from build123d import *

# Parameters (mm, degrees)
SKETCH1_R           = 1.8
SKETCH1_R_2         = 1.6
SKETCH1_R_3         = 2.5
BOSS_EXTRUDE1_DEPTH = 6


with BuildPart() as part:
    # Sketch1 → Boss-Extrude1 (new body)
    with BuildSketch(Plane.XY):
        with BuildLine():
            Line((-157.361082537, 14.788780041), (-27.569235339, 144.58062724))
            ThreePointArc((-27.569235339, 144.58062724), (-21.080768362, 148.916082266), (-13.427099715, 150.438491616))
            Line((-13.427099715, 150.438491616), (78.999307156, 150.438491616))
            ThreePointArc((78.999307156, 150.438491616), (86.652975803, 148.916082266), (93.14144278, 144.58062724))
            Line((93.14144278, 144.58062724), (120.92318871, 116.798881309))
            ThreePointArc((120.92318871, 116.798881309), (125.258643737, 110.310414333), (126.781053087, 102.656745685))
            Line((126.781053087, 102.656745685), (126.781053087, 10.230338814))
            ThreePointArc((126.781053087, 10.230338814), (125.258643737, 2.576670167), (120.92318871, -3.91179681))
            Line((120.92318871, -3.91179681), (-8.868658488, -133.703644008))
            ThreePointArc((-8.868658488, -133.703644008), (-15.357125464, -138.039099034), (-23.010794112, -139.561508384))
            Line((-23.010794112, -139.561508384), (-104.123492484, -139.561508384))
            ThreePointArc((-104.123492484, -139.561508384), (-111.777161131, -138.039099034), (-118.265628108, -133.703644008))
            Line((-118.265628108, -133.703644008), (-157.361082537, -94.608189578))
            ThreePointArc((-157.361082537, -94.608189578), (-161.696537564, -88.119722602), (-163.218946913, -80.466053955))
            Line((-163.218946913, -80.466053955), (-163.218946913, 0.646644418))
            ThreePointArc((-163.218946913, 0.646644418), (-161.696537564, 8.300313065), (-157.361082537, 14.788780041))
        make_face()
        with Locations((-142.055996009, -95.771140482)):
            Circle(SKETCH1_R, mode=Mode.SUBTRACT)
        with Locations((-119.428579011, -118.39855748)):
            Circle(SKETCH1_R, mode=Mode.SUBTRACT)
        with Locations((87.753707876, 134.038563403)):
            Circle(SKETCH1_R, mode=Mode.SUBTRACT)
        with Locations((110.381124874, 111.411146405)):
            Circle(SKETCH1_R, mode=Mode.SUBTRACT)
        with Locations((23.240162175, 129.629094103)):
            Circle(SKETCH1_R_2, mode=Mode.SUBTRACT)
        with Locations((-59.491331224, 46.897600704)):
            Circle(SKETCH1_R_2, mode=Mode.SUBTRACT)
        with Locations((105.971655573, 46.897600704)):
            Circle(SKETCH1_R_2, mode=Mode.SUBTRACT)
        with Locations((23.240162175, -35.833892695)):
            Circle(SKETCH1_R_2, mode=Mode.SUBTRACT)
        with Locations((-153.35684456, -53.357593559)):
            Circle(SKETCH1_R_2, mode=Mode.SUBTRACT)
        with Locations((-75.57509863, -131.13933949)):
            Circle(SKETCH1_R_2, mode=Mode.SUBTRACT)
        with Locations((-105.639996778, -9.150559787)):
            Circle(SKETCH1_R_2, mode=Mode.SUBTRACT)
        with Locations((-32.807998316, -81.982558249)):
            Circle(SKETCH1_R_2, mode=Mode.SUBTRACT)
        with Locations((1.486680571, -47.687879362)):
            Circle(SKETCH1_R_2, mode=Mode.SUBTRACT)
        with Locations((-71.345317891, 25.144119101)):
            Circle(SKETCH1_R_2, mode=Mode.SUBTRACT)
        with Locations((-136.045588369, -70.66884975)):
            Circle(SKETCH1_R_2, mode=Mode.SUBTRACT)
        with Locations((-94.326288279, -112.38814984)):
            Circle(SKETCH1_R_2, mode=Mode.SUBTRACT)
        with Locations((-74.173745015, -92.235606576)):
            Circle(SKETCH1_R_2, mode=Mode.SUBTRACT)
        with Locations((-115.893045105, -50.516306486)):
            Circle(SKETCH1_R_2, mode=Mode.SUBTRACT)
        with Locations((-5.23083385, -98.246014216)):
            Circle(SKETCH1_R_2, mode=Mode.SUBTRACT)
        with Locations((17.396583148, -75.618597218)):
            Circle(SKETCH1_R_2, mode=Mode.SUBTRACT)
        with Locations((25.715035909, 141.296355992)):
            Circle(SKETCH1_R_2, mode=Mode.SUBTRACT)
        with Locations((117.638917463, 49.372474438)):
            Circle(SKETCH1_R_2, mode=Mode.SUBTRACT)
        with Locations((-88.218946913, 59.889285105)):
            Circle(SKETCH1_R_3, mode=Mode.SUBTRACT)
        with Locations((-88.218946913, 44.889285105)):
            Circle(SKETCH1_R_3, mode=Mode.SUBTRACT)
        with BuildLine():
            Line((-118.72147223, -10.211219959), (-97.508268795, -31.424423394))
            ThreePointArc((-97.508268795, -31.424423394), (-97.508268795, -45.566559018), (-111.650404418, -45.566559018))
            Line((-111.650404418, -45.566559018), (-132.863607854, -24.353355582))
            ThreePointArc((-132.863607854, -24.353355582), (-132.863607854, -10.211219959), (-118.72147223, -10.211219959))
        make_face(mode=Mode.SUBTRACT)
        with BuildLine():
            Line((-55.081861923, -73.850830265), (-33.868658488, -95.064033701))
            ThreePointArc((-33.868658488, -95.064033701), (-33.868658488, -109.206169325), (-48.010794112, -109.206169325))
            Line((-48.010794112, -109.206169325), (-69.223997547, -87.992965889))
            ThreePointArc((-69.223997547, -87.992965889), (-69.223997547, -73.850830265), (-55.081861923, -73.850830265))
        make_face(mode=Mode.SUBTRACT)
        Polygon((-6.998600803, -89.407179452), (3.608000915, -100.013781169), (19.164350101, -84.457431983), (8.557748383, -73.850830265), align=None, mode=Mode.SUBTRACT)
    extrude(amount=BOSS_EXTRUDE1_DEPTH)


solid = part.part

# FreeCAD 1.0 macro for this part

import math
import FreeCAD as App
import Part
import Sketcher
from FreeCAD import Vector
Q = App.Units.Quantity

doc = App.newDocument("Part")
params = doc.addObject("Spreadsheet::Sheet", "Params")
for row, (alias, value) in enumerate([
    ("sketch1_diameter", "5 mm"),
    ("sketch1_radius", "20 mm"),
    ("sketch1_radius2", "10 mm"),
    ("sketch1_diameter2", "3.2 mm"),
    ("sketch1_diameter3", "3.6 mm"),
    ("pad1_length", "6 mm"),
], start=1):
    params.set(f"A{row}", alias)
    params.set(f"B{row}", "=" + value)
    params.setAlias(f"B{row}", alias)

body = doc.addObject("PartDesign::Body", "Body")

sketch1 = doc.addObject("Sketcher::SketchObject", "Sketch")
body.addObject(sketch1)
sketch1.AttachmentSupport = (doc.XY_Plane, [""])
sketch1.MapMode = "FlatFace"
sketch1.addGeometry([
    Part.LineSegment(Vector(-27.569235, 144.580627, 0), Vector(-157.361083, 14.78878, 0)),
    Part.ArcOfCircle(Part.Circle(Vector(-143.218947, 0.646644, 0), Vector(0, 0, 1), 20), math.radians(135), math.radians(180)),
    Part.LineSegment(Vector(-163.218947, 0.646644, 0), Vector(-163.218947, -80.466054, 0)),
    Part.ArcOfCircle(Part.Circle(Vector(-143.218947, -80.466054, 0), Vector(0, 0, 1), 20), math.radians(180), math.radians(225)),
    Part.LineSegment(Vector(-157.361083, -94.60819, 0), Vector(-118.265628, -133.703644, 0)),
    Part.ArcOfCircle(Part.Circle(Vector(-104.123492, -119.561508, 0), Vector(0, 0, 1), 20), math.radians(-135), math.radians(-90)),
    Part.LineSegment(Vector(-104.123492, -139.561508, 0), Vector(-23.010794, -139.561508, 0)),
    Part.ArcOfCircle(Part.Circle(Vector(-23.010794, -119.561508, 0), Vector(0, 0, 1), 20), math.radians(-90), math.radians(-45)),
    Part.LineSegment(Vector(-8.868658, -133.703644, 0), Vector(120.923189, -3.911797, 0)),
    Part.ArcOfCircle(Part.Circle(Vector(106.781053, 10.230339, 0), Vector(0, 0, 1), 20), math.radians(-45), math.radians(0)),
    Part.LineSegment(Vector(126.781053, 10.230339, 0), Vector(126.781053, 102.656746, 0)),
    Part.ArcOfCircle(Part.Circle(Vector(106.781053, 102.656746, 0), Vector(0, 0, 1), 20), math.radians(0), math.radians(45)),
    Part.LineSegment(Vector(120.923189, 116.798881, 0), Vector(93.141443, 144.580627, 0)),
    Part.ArcOfCircle(Part.Circle(Vector(78.999307, 130.438492, 0), Vector(0, 0, 1), 20), math.radians(45), math.radians(90)),
    Part.LineSegment(Vector(78.999307, 150.438492, 0), Vector(-13.4271, 150.438492, 0)),
    Part.ArcOfCircle(Part.Circle(Vector(-13.4271, 130.438492, 0), Vector(0, 0, 1), 20), math.radians(90), math.radians(135)),
    Part.Circle(Vector(17.396583, -75.618597, 0), Vector(0, 0, 1), 1.6),
    Part.LineSegment(Vector(-6.998601, -89.407179, 0), Vector(8.557748, -73.85083, 0)),
    Part.LineSegment(Vector(8.557748, -73.85083, 0), Vector(19.16435, -84.457432, 0)),
    Part.LineSegment(Vector(19.16435, -84.457432, 0), Vector(3.608001, -100.013781, 0)),
    Part.LineSegment(Vector(3.608001, -100.013781, 0), Vector(-6.998601, -89.407179, 0)),
    Part.Circle(Vector(-5.230834, -98.246014, 0), Vector(0, 0, 1), 1.6),
    Part.Circle(Vector(23.240162, -35.833893, 0), Vector(0, 0, 1), 1.6),
    Part.Circle(Vector(1.486681, -47.687879, 0), Vector(0, 0, 1), 1.6),
    Part.Circle(Vector(-75.575099, -131.139339, 0), Vector(0, 0, 1), 1.6),
    Part.Circle(Vector(-32.807998, -81.982558, 0), Vector(0, 0, 1), 1.6),
    Part.LineSegment(Vector(-55.081862, -73.85083, 0), Vector(-33.868658, -95.064034, 0)),
    Part.ArcOfCircle(Part.Circle(Vector(-40.939726, -102.135102, 0), Vector(0, 0, 1), 10), math.radians(-135), math.radians(45)),
    Part.LineSegment(Vector(-48.010794, -109.206169, 0), Vector(-69.223998, -87.992966, 0)),
    Part.ArcOfCircle(Part.Circle(Vector(-62.15293, -80.921898, 0), Vector(0, 0, 1), 10), math.radians(45), math.radians(225)),
    Part.Circle(Vector(-74.173745, -92.235607, 0), Vector(0, 0, 1), 1.6),
    Part.Circle(Vector(-119.428579, -118.398557, 0), Vector(0, 0, 1), 1.8),
    Part.Circle(Vector(-94.326288, -112.38815, 0), Vector(0, 0, 1), 1.6),
    Part.Circle(Vector(-142.055996, -95.77114, 0), Vector(0, 0, 1), 1.8),
    Part.Circle(Vector(-136.045588, -70.66885, 0), Vector(0, 0, 1), 1.6),
    Part.Circle(Vector(-115.893045, -50.516306, 0), Vector(0, 0, 1), 1.6),
    Part.Circle(Vector(-153.356845, -53.357594, 0), Vector(0, 0, 1), 1.6),
    Part.LineSegment(Vector(-118.721472, -10.21122, 0), Vector(-97.508269, -31.424423, 0)),
    Part.ArcOfCircle(Part.Circle(Vector(-104.579337, -38.495491, 0), Vector(0, 0, 1), 10), math.radians(-135), math.radians(45)),
    Part.LineSegment(Vector(-111.650404, -45.566559, 0), Vector(-132.863608, -24.353356, 0)),
    Part.ArcOfCircle(Part.Circle(Vector(-125.79254, -17.282288, 0), Vector(0, 0, 1), 10), math.radians(45), math.radians(225)),
    Part.Circle(Vector(-105.639997, -9.15056, 0), Vector(0, 0, 1), 1.6),
    Part.Circle(Vector(105.971656, 46.897601, 0), Vector(0, 0, 1), 1.6),
    Part.Circle(Vector(117.638917, 49.372474, 0), Vector(0, 0, 1), 1.6),
    Part.Circle(Vector(110.381125, 111.411146, 0), Vector(0, 0, 1), 1.8),
    Part.Circle(Vector(87.753708, 134.038563, 0), Vector(0, 0, 1), 1.8),
    Part.Circle(Vector(23.240162, 129.629094, 0), Vector(0, 0, 1), 1.6),
    Part.Circle(Vector(25.715036, 141.296356, 0), Vector(0, 0, 1), 1.6),
    Part.Circle(Vector(-71.345318, 25.144119, 0), Vector(0, 0, 1), 1.6),
    Part.Circle(Vector(-59.491331, 46.897601, 0), Vector(0, 0, 1), 1.6),
    Part.Circle(Vector(-88.218947, 44.889285, 0), Vector(0, 0, 1), 2.5),
    Part.Circle(Vector(-88.218947, 59.889285, 0), Vector(0, 0, 1), 2.5),
], False)
sketch1.addConstraint([
    Sketcher.Constraint("Tangent", 0, 2, 1, 1),
    Sketcher.Constraint("Tangent", 1, 2, 2, 1),
    Sketcher.Constraint("Tangent", 2, 2, 3, 1),
    Sketcher.Constraint("Tangent", 3, 2, 4, 1),
    Sketcher.Constraint("Tangent", 4, 2, 5, 1),
    Sketcher.Constraint("Tangent", 5, 2, 6, 1),
    Sketcher.Constraint("Tangent", 6, 2, 7, 1),
    Sketcher.Constraint("Tangent", 7, 2, 8, 1),
    Sketcher.Constraint("Tangent", 8, 2, 9, 1),
    Sketcher.Constraint("Tangent", 9, 2, 10, 1),
    Sketcher.Constraint("Tangent", 10, 2, 11, 1),
    Sketcher.Constraint("Tangent", 11, 2, 12, 1),
    Sketcher.Constraint("Tangent", 12, 2, 13, 1),
    Sketcher.Constraint("Tangent", 13, 2, 14, 1),
    Sketcher.Constraint("Tangent", 14, 2, 15, 1),
    Sketcher.Constraint("Tangent", 15, 2, 0, 1),
    Sketcher.Constraint("Coincident", 17, 2, 18, 1),
    Sketcher.Constraint("Coincident", 18, 2, 19, 1),
    Sketcher.Constraint("Coincident", 19, 2, 20, 1),
    Sketcher.Constraint("Coincident", 20, 2, 17, 1),
    Sketcher.Constraint("Tangent", 26, 2, 27, 2),
    Sketcher.Constraint("Tangent", 27, 1, 28, 1),
    Sketcher.Constraint("Tangent", 28, 2, 29, 2),
    Sketcher.Constraint("Tangent", 29, 1, 26, 1),
    Sketcher.Constraint("Tangent", 37, 2, 38, 2),
    Sketcher.Constraint("Tangent", 38, 1, 39, 1),
    Sketcher.Constraint("Tangent", 39, 2, 40, 2),
    Sketcher.Constraint("Tangent", 40, 1, 37, 1),
    Sketcher.Constraint("Vertical", 2),
    Sketcher.Constraint("Horizontal", 6),
    Sketcher.Constraint("Vertical", 10),
    Sketcher.Constraint("Horizontal", 14),
    Sketcher.Constraint("Equal", 1, 3),
    Sketcher.Constraint("Equal", 3, 5),
    Sketcher.Constraint("Equal", 5, 7),
    Sketcher.Constraint("Equal", 7, 9),
    Sketcher.Constraint("Equal", 9, 11),
    Sketcher.Constraint("Equal", 11, 13),
    Sketcher.Constraint("Equal", 13, 15),
    Sketcher.Constraint("Equal", 16, 21),
    Sketcher.Constraint("Equal", 21, 22),
    Sketcher.Constraint("Equal", 22, 23),
    Sketcher.Constraint("Equal", 23, 24),
    Sketcher.Constraint("Equal", 24, 25),
    Sketcher.Constraint("Equal", 27, 29),
    Sketcher.Constraint("Equal", 25, 30),
    Sketcher.Constraint("Equal", 30, 32),
    Sketcher.Constraint("Equal", 31, 33),
    Sketcher.Constraint("Equal", 32, 34),
    Sketcher.Constraint("Equal", 34, 35),
    Sketcher.Constraint("Equal", 35, 36),
    Sketcher.Constraint("Equal", 29, 38),
    Sketcher.Constraint("Equal", 38, 40),
    Sketcher.Constraint("Equal", 36, 41),
    Sketcher.Constraint("Equal", 41, 42),
    Sketcher.Constraint("Equal", 42, 43),
    Sketcher.Constraint("Equal", 33, 44),
    Sketcher.Constraint("Equal", 44, 45),
    Sketcher.Constraint("Equal", 43, 46),
    Sketcher.Constraint("Equal", 46, 47),
    Sketcher.Constraint("Equal", 47, 48),
    Sketcher.Constraint("Equal", 48, 49),
    Sketcher.Constraint("Equal", 50, 51),
    Sketcher.Constraint("Perpendicular", 0, 4),
    Sketcher.Constraint("Perpendicular", 4, 8),
    Sketcher.Constraint("Perpendicular", 8, 12),
    Sketcher.Constraint("Perpendicular", 12, 17),
    Sketcher.Constraint("Perpendicular", 17, 18),
    Sketcher.Constraint("Perpendicular", 18, 19),
    Sketcher.Constraint("Perpendicular", 19, 20),
    Sketcher.Constraint("Parallel", 20, 26),
    Sketcher.Constraint("Parallel", 28, 37),
    Sketcher.Constraint("Horizontal", 42, 3, 49, 3),
    Sketcher.Constraint("Horizontal", 4, 2, 7, 2),
    Sketcher.Constraint("Horizontal", 17, 2, 29, 1),
    Sketcher.Constraint("Vertical", 22, 3, 46, 3),
    Sketcher.Constraint("Vertical", 50, 3, 51, 3),
    Sketcher.Constraint("Equal", 6, 2),
    Sketcher.Constraint("Equal", 14, 10),
    Sketcher.Constraint("Equal", 28, 37),
    Sketcher.Constraint("Diameter", 50, Q("5 mm")),
    Sketcher.Constraint("Radius", 1, Q("20 mm")),
    Sketcher.Constraint("Radius", 27, Q("10 mm")),
    Sketcher.Constraint("Diameter", 16, Q("3.2 mm")),
    Sketcher.Constraint("Diameter", 31, Q("3.6 mm")),
    Sketcher.Constraint("Distance", 17, Q("22 mm")),
    Sketcher.Constraint("Distance", 18, Q("15 mm")),
    Sketcher.Constraint("Distance", 26, Q("30 mm")),
    Sketcher.Constraint("DistanceX", 6, 1, 6, 2, Q("81.112698 mm")),
    Sketcher.Constraint("DistanceX", 25, 3, -1, 1, Q("32.807998 mm")),
    Sketcher.Constraint("DistanceX", -1, 1, 19, 2, Q("3.608001 mm")),
    Sketcher.Constraint("DistanceX", 15, 3, -1, 1, Q("13.4271 mm")),
    Sketcher.Constraint("DistanceX", 24, 3, -1, 1, Q("75.575099 mm")),
    Sketcher.Constraint("DistanceY", 27, 3, -1, 1, Q("102.135102 mm")),
    Sketcher.Constraint("DistanceY", -1, 1, 42, 3, Q("46.897601 mm")),
    Sketcher.Constraint("Distance", 0, Q("183.553391 mm")),
    Sketcher.Constraint("Distance", 4, Q("55.289322 mm")),
    Sketcher.Constraint("Distance", 12, Q("39.289322 mm")),
    Sketcher.Constraint("DistanceY", 5, 3, -1, 1, Q("119.561508 mm")),
    Sketcher.Constraint("DistanceX", -1, 1, 23, 3, Q("1.486681 mm")),
    Sketcher.Constraint("DistanceY", 23, 3, -1, 1, Q("47.687879 mm")),
    Sketcher.Constraint("DistanceY", 24, 3, -1, 1, Q("131.139339 mm")),
    Sketcher.Constraint("DistanceY", 25, 3, -1, 1, Q("81.982558 mm")),
    Sketcher.Constraint("DistanceX", 29, 3, -1, 1, Q("62.15293 mm")),
    Sketcher.Constraint("DistanceX", 31, 3, -1, 1, Q("119.428579 mm")),
    Sketcher.Constraint("DistanceX", 32, 3, -1, 1, Q("94.326288 mm")),
    Sketcher.Constraint("DistanceY", 32, 3, -1, 1, Q("112.38815 mm")),
    Sketcher.Constraint("DistanceY", 33, 3, -1, 1, Q("95.77114 mm")),
    Sketcher.Constraint("DistanceX", 34, 3, -1, 1, Q("136.045588 mm")),
    Sketcher.Constraint("DistanceY", 34, 3, -1, 1, Q("70.66885 mm")),
    Sketcher.Constraint("DistanceY", 38, 3, -1, 1, Q("38.495491 mm")),
    Sketcher.Constraint("DistanceX", 40, 3, -1, 1, Q("125.79254 mm")),
    Sketcher.Constraint("DistanceY", 41, 3, -1, 1, Q("9.15056 mm")),
    Sketcher.Constraint("DistanceY", -1, 1, 48, 3, Q("25.144119 mm")),
    Sketcher.Constraint("DistanceX", 49, 3, -1, 1, Q("59.491331 mm")),
    Sketcher.Constraint("DistanceX", -1, 1, 16, 3, Q("17.396583 mm")),
    Sketcher.Constraint("DistanceY", 16, 3, -1, 1, Q("75.618597 mm")),
    Sketcher.Constraint("DistanceX", 21, 3, -1, 1, Q("5.230834 mm")),
    Sketcher.Constraint("DistanceY", 21, 3, -1, 1, Q("98.246014 mm")),
    Sketcher.Constraint("DistanceX", -1, 1, 22, 3, Q("23.240162 mm")),
    Sketcher.Constraint("DistanceY", 22, 3, -1, 1, Q("35.833893 mm")),
    Sketcher.Constraint("DistanceX", 30, 3, -1, 1, Q("74.173745 mm")),
    Sketcher.Constraint("DistanceY", 30, 3, -1, 1, Q("92.235607 mm")),
    Sketcher.Constraint("DistanceY", 31, 3, -1, 1, Q("118.398557 mm")),
    Sketcher.Constraint("DistanceX", 33, 3, -1, 1, Q("142.055996 mm")),
    Sketcher.Constraint("DistanceX", 35, 3, -1, 1, Q("115.893045 mm")),
    Sketcher.Constraint("DistanceY", 35, 3, -1, 1, Q("50.516306 mm")),
    Sketcher.Constraint("DistanceX", 36, 3, -1, 1, Q("153.356845 mm")),
    Sketcher.Constraint("DistanceY", 36, 3, -1, 1, Q("53.357594 mm")),
    Sketcher.Constraint("DistanceX", 41, 3, -1, 1, Q("105.639997 mm")),
    Sketcher.Constraint("DistanceX", -1, 1, 42, 3, Q("105.971656 mm")),
    Sketcher.Constraint("DistanceX", -1, 1, 43, 3, Q("117.638917 mm")),
    Sketcher.Constraint("DistanceY", -1, 1, 43, 3, Q("49.372474 mm")),
    Sketcher.Constraint("DistanceX", -1, 1, 44, 3, Q("110.381125 mm")),
    Sketcher.Constraint("DistanceY", -1, 1, 44, 3, Q("111.411146 mm")),
    Sketcher.Constraint("DistanceX", -1, 1, 45, 3, Q("87.753708 mm")),
    Sketcher.Constraint("DistanceY", -1, 1, 45, 3, Q("134.038563 mm")),
    Sketcher.Constraint("DistanceY", -1, 1, 46, 3, Q("129.629094 mm")),
    Sketcher.Constraint("DistanceX", -1, 1, 47, 3, Q("25.715036 mm")),
    Sketcher.Constraint("DistanceY", -1, 1, 47, 3, Q("141.296356 mm")),
    Sketcher.Constraint("DistanceX", 48, 3, -1, 1, Q("71.345318 mm")),
    Sketcher.Constraint("DistanceX", 50, 3, -1, 1, Q("88.218947 mm")),
    Sketcher.Constraint("DistanceY", -1, 1, 50, 3, Q("44.889285 mm")),
    Sketcher.Constraint("DistanceY", -1, 1, 51, 3, Q("59.889285 mm")),
])
sketch1.setExpression("Constraints[80]", "Params.sketch1_diameter")
sketch1.setExpression("Constraints[81]", "Params.sketch1_radius")
sketch1.setExpression("Constraints[82]", "Params.sketch1_radius2")
sketch1.setExpression("Constraints[83]", "Params.sketch1_diameter2")
sketch1.setExpression("Constraints[84]", "Params.sketch1_diameter3")
pad1 = doc.addObject("PartDesign::Pad", "Pad")
body.addObject(pad1)
pad1.Profile = sketch1
pad1.setExpression("Length", "Params.pad1_length")

doc.recompute()
